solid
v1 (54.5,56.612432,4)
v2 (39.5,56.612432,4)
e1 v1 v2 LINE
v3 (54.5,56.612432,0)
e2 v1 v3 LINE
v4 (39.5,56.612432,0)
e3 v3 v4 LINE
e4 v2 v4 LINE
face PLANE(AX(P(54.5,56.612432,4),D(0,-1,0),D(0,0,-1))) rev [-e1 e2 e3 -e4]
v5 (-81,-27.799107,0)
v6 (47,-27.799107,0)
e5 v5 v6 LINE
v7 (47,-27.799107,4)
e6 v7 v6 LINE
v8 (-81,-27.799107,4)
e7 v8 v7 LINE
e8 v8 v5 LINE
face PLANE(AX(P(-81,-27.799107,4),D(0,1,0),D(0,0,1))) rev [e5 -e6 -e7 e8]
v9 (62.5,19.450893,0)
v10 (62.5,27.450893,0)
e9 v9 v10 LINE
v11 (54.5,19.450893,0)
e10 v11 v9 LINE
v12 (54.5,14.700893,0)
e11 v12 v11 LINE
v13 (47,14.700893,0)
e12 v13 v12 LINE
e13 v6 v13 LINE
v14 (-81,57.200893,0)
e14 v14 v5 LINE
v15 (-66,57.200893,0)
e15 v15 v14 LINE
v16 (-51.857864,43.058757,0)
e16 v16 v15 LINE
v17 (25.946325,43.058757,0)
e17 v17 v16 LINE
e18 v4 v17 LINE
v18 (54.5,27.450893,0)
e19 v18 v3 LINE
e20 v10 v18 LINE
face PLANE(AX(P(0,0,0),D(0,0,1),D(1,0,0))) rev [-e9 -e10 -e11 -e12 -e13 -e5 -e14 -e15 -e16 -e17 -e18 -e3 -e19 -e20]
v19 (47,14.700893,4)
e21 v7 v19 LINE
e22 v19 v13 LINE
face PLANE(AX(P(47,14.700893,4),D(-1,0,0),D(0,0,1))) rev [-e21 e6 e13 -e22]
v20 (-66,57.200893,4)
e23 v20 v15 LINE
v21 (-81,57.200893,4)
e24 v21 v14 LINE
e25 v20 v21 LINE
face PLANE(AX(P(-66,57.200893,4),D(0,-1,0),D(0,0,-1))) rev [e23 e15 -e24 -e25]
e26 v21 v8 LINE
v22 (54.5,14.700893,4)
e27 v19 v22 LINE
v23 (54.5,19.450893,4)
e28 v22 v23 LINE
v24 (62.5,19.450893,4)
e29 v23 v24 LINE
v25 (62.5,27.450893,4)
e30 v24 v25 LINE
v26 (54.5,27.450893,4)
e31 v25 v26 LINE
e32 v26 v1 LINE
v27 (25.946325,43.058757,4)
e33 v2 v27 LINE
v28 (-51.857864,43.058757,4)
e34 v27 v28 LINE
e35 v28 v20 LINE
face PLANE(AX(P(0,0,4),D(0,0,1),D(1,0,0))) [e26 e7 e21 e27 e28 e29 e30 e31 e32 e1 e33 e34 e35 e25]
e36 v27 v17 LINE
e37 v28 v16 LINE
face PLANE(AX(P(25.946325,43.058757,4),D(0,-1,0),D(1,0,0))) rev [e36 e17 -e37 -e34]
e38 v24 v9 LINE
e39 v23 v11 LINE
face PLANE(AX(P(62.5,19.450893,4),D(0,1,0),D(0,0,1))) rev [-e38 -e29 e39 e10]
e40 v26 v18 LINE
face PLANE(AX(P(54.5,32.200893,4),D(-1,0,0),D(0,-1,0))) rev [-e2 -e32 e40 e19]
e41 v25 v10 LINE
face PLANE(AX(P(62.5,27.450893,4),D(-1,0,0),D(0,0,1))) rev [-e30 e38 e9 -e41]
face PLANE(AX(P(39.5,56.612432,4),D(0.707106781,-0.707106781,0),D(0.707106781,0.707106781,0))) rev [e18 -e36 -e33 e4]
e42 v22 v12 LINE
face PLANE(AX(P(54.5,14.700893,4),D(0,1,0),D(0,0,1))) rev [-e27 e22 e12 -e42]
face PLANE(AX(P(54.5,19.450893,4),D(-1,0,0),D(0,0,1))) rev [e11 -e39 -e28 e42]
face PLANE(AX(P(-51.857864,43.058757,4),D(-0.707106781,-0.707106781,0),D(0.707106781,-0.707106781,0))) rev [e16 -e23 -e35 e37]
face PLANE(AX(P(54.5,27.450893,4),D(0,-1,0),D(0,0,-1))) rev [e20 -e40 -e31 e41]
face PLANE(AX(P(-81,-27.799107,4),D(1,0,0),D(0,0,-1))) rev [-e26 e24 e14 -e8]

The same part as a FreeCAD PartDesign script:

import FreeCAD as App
import Part
import Sketcher

V = App.Vector
Q = App.Units.Quantity


def add_polygon(sketch, points):
    """Adds a closed chain of lines whose ends are joined by coincident constraints."""
    first, n = sketch.GeometryCount, len(points)
    for a, b in zip(points, points[1:] + points[:1]):
        sketch.addGeometry(Part.LineSegment(App.Vector(*a, 0), App.Vector(*b, 0)), False)
    for i in range(n):
        sketch.addConstraint(Sketcher.Constraint("Coincident", first + i, 2, first + (i + 1) % n, 1))

doc = App.newDocument("Part")
params = doc.addObject("Spreadsheet::Sheet", "Params")
for row, (alias, value) in enumerate([
    ("sketch1_width", "128 mm"),
    ("sketch1_width2", "8 mm"),
    ("sketch1_height", "60 mm"),
    ("sketch1_width3", "135.5 mm"),
    ("sketch1_height2", "42.5 mm"),
    ("pad1_length", "4 mm"),
    ("sketch2_width", "15 mm"),
    ("sketch2_height", "25 mm"),
    ("sketch2_length", "20 mm"),
    ("sketch2_width2", "135.5 mm"),
    ("pad2_length", "4 mm"),
], start=1):
    params.set(f"A{row}", alias)
    params.set(f"B{row}", "=" + value)
    params.setAlias(f"B{row}", alias)

body = doc.addObject("PartDesign::Body", "Body")

# Sketch on XY plane
sketch1 = body.newObject("Sketcher::SketchObject", "Sketch")
sketch1.AttachmentSupport = (doc.getObject("XY_Plane"), [""])
sketch1.MapMode = "FlatFace"
add_polygon(sketch1, [(54.5, 32.200893), (-81, 32.200893), (-81, -27.799107), (47, -27.799107), (47, 14.700893), (54.5, 14.700893), (54.5, 19.450893), (62.5, 19.450893), (62.5, 27.450893), (54.5, 27.450893)])  # lines 0-9
sketch1.addConstraint([
    Sketcher.Constraint("Horizontal", 0),
    Sketcher.Constraint("Vertical", 1),
    Sketcher.Constraint("Horizontal", 2),
    Sketcher.Constraint("Vertical", 3),
    Sketcher.Constraint("Horizontal", 4),
    Sketcher.Constraint("Vertical", 5),
    Sketcher.Constraint("Horizontal", 6),
    Sketcher.Constraint("Vertical", 7),
    Sketcher.Constraint("Horizontal", 8),
    Sketcher.Constraint("Vertical", 9),
    Sketcher.Constraint("Vertical", 5, 2, 8, 2),
    Sketcher.Constraint("Equal", 8, 7),
    Sketcher.Constraint("Equal", 5, 9),
    Sketcher.Constraint("DistanceX", 2, 1, 2, 2, Q("128 mm")),
    Sketcher.Constraint("DistanceX", 6, 1, 6, 2, Q("8 mm")),
    Sketcher.Constraint("DistanceY", 1, 2, 1, 1, Q("60 mm")),
    Sketcher.Constraint("DistanceX", 0, 2, 0, 1, Q("135.5 mm")),
    Sketcher.Constraint("DistanceY", 3, 1, 3, 2, Q("42.5 mm")),
    Sketcher.Constraint("DistanceX", 0, 2, -1, 1, Q("81 mm")),
    Sketcher.Constraint("DistanceY", -1, 1, 0, 2, Q("32.200893 mm")),
])
sketch1.setExpression("Constraints[23]", "Params.sketch1_width")
sketch1.setExpression("Constraints[24]", "Params.sketch1_width2")
sketch1.setExpression("Constraints[25]", "Params.sketch1_height")
sketch1.setExpression("Constraints[26]", "Params.sketch1_width3")
sketch1.setExpression("Constraints[27]", "Params.sketch1_height2")
pad1 = body.newObject("PartDesign::Pad", "Pad")
pad1.Profile = sketch1
pad1.setExpression("Length", "Params.pad1_length")

# Sketch on XY plane
sketch2 = body.newObject("Sketcher::SketchObject", "Sketch001")
sketch2.AttachmentSupport = (doc.getObject("XY_Plane"), [""])
sketch2.MapMode = "FlatFace"
add_polygon(sketch2, [(-81, 32.200893), (54.5, 32.200893), (54.5, 56.612432), (39.5, 56.612432), (25.946325, 43.058757), (-51.857864, 43.058757), (-66, 57.200893), (-81, 57.200893)])  # lines 0-7
sketch2.addConstraint([
    Sketcher.Constraint("Horizontal", 0),
    Sketcher.Constraint("Vertical", 1),
    Sketcher.Constraint("Horizontal", 2),
    Sketcher.Constraint("Horizontal", 4),
    Sketcher.Constraint("Horizontal", 6),
    Sketcher.Constraint("Vertical", 7),
    Sketcher.Constraint("Perpendicular", 3, 5),
    Sketcher.Constraint("Equal", 2, 6),
    Sketcher.Constraint("DistanceX", 2, 2, 2, 1, Q("15 mm")),
    Sketcher.Constraint("DistanceY", 7, 2, 7, 1, Q("25 mm")),
    Sketcher.Constraint("Angle", 3, Q("-135 deg")),
    Sketcher.Constraint("Distance", 5, Q("20 mm")),
    Sketcher.Constraint("DistanceX", 0, 1, 0, 2, Q("135.5 mm")),
    Sketcher.Constraint("DistanceX", 5, 2, -1, 1, Q("66 mm")),
    Sketcher.Constraint("DistanceX", 4, 2, 4, 1, Q("77.80419 mm")),
    Sketcher.Constraint("DistanceY", -1, 1, 1, 2, Q("56.612432 mm")),
])
sketch2.setExpression("Constraints[16]", "Params.sketch2_width")
sketch2.setExpression("Constraints[17]", "Params.sketch2_height")
sketch2.setExpression("Constraints[19]", "Params.sketch2_length")
sketch2.setExpression("Constraints[20]", "Params.sketch2_width2")
pad2 = body.newObject("PartDesign::Pad", "Pad001")
pad2.Profile = sketch2
pad2.setExpression("Length", "Params.pad2_length")

doc.recompute()
